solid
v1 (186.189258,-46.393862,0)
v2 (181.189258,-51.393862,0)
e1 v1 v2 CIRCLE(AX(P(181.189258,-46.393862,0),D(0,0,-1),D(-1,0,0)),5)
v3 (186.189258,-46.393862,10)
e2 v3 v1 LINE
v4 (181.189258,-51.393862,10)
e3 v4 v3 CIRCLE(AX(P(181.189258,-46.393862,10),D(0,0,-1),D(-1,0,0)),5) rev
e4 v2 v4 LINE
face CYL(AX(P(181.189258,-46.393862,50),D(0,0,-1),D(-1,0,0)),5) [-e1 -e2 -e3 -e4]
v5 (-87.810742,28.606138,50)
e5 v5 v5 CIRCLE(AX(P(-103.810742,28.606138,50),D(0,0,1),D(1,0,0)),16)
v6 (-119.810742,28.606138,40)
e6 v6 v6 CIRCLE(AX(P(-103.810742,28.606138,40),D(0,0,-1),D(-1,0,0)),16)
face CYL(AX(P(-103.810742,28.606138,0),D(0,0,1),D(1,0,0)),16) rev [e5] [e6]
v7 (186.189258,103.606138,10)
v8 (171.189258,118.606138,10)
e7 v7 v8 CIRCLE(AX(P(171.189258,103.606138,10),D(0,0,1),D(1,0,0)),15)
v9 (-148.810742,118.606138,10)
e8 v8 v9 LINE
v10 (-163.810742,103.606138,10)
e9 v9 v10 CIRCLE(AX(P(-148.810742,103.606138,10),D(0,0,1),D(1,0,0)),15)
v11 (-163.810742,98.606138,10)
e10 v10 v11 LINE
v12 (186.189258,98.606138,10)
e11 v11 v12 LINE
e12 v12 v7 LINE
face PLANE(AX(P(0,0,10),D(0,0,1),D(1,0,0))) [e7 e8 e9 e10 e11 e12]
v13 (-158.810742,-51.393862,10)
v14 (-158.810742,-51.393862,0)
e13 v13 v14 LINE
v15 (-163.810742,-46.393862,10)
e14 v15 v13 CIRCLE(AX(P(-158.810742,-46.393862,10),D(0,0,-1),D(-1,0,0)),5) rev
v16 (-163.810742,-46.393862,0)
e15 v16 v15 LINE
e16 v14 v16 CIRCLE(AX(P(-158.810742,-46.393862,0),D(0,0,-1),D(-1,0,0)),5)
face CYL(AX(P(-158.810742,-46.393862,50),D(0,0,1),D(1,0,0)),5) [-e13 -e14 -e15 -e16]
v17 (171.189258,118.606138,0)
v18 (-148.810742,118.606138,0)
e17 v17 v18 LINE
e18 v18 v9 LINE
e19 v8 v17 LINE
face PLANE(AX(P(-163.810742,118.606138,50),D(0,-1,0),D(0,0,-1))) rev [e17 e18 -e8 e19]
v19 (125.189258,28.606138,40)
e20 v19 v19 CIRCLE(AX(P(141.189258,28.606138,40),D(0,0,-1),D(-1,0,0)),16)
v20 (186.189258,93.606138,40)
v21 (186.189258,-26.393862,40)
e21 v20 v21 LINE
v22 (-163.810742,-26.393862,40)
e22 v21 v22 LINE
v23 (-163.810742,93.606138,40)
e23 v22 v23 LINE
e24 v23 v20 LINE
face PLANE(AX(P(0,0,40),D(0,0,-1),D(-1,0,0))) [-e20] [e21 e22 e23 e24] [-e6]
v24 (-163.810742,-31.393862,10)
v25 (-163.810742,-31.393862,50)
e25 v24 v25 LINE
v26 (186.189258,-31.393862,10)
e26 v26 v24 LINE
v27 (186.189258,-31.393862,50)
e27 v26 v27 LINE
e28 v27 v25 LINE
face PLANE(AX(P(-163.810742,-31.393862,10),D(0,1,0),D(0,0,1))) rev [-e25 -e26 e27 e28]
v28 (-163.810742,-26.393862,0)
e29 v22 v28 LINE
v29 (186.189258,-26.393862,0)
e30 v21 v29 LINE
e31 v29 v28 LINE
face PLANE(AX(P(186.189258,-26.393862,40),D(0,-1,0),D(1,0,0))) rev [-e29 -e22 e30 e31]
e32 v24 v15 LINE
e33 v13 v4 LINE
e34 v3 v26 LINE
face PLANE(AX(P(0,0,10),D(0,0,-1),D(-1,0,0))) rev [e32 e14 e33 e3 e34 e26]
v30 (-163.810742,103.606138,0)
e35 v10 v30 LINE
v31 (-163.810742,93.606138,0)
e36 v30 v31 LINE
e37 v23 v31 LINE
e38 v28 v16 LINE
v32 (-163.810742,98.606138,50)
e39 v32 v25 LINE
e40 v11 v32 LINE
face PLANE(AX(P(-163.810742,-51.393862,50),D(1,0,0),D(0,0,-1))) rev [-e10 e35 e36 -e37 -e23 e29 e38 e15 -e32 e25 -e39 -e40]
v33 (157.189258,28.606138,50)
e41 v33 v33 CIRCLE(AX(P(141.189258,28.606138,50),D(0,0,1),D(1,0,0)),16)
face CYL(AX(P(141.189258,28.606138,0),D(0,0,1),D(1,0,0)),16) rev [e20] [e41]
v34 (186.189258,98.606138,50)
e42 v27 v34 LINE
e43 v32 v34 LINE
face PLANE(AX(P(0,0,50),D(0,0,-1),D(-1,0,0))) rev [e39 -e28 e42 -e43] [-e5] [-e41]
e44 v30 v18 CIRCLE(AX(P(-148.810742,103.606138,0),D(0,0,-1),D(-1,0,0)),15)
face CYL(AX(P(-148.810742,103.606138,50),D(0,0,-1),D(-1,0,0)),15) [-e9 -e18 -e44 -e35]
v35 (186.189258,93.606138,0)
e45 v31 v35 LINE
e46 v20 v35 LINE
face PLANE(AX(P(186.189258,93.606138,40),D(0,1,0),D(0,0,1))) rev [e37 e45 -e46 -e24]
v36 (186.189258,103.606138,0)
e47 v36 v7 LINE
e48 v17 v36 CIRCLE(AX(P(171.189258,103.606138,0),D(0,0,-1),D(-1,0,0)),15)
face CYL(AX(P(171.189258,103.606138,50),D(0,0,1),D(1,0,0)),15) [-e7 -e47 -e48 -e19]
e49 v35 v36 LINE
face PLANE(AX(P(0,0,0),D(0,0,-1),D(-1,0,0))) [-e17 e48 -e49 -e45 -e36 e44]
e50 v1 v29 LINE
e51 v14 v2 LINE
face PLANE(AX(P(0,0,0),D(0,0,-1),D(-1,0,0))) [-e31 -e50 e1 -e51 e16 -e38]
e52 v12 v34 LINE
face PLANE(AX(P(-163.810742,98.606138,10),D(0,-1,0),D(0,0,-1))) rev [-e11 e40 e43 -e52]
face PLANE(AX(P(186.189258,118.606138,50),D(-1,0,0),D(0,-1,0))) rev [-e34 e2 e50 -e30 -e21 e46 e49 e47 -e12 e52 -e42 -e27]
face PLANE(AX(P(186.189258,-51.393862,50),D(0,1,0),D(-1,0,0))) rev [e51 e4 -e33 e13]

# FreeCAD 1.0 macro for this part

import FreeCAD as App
import Part
import Sketcher


def edges_at(feature, points):
    """Names of the edges that pass closest to the given points."""
    edges = feature.Shape.Edges
    near = lambda p: min(range(len(edges)), key=lambda i: edges[i].distToShape(Part.Vertex(*p))[0])
    return sorted({f"Edge{near(p) + 1}" for p in points})


def add_polygon(sketch, points):
    """Adds a closed chain of lines whose ends are joined by coincident constraints."""
    first, n = sketch.GeometryCount, len(points)
    for a, b in zip(points, points[1:] + points[:1]):
        sketch.addGeometry(Part.LineSegment(App.Vector(*a, 0), App.Vector(*b, 0)), False)
    for i in range(n):
        sketch.addConstraint(Sketcher.Constraint("Coincident", first + i, 2, first + (i + 1) % n, 1))

doc = App.newDocument("Part")
params = doc.addObject("Spreadsheet::Sheet", "Params")
for row, (alias, value) in enumerate([
    ("sketch1_width", "350 mm"),
    ("sketch1_height", "170 mm"),
    ("pad1_length", "50 mm"),
    ("sketch2_width", "350 mm"),
    ("sketch2_height", "20 mm"),
    ("pocket1_length", "40 mm"),
    ("sketch3_width", "350 mm"),
    ("sketch3_height", "120 mm"),
    ("pocket2_length", "40 mm"),
    ("sketch4_diameter", "32 mm"),
    ("fillet_radius", "5 mm"),
    ("fillet2_radius", "5 mm"),
    ("fillet3_radius", "15 mm"),
    ("fillet4_radius", "15 mm"),
], start=1):
    params.set(f"A{row}", alias)
    params.set(f"B{row}", "=" + value)
    params.setAlias(f"B{row}", alias)

body = doc.addObject("PartDesign::Body", "Body")

# Sketch on XY plane
sketch1 = doc.addObject("Sketcher::SketchObject", "Sketch")
body.addObject(sketch1)
sketch1.AttachmentSupport = (doc.XY_Plane, [""])
sketch1.MapMode = "FlatFace"
add_polygon(sketch1, [(-164, 119), (-164, -51), (186, -51), (186, 119)])  # lines 0-3
sketch1.addConstraint(Sketcher.Constraint("Vertical", 0))
sketch1.addConstraint(Sketcher.Constraint("Horizontal", 1))
sketch1.addConstraint(Sketcher.Constraint("Vertical", 2))
sketch1.addConstraint(Sketcher.Constraint("Horizontal", 3))
sketch1.addConstraint(Sketcher.Constraint("DistanceX", 1, 1, 1, 2, 350.0))
sketch1.addConstraint(Sketcher.Constraint("DistanceY", 0, 2, 0, 1, 170.0))
sketch1.addConstraint(Sketcher.Constraint("DistanceX", 0, 2, -1, 1, 163.810742))
sketch1.addConstraint(Sketcher.Constraint("DistanceY", 0, 2, -1, 1, 51.393862))
sketch1.setExpression("Constraints[8]", "Params.sketch1_width")
sketch1.setExpression("Constraints[9]", "Params.sketch1_height")
pad1 = doc.addObject("PartDesign::Pad", "Pad")
body.addObject(pad1)
pad1.Profile = sketch1
pad1.setExpression("Length", "Params.pad1_length")

# Sketch on XY plane
sketch2 = doc.addObject("Sketcher::SketchObject", "Sketch001")
body.addObject(sketch2)
sketch2.AttachmentSupport = (doc.XY_Plane, [""])
sketch2.MapMode = "FlatFace"
sketch2.AttachmentOffset = App.Placement(App.Vector(0, 0, 50), App.Rotation())
add_polygon(sketch2, [(-164, -31), (-164, -51), (186, -51), (186, -31)])  # lines 0-3
add_polygon(sketch2, [(-164, 119), (-164, 99), (186, 99), (186, 119)])  # lines 4-7
sketch2.addConstraint(Sketcher.Constraint("Vertical", 0))
sketch2.addConstraint(Sketcher.Constraint("Horizontal", 1))
sketch2.addConstraint(Sketcher.Constraint("Vertical", 2))
sketch2.addConstraint(Sketcher.Constraint("Horizontal", 3))
sketch2.addConstraint(Sketcher.Constraint("Vertical", 4))
sketch2.addConstraint(Sketcher.Constraint("Horizontal", 5))
sketch2.addConstraint(Sketcher.Constraint("Vertical", 6))
sketch2.addConstraint(Sketcher.Constraint("Horizontal", 7))
sketch2.addConstraint(Sketcher.Constraint("Vertical", 3, 2, 4, 2))
sketch2.addConstraint(Sketcher.Constraint("Vertical", 2, 2, 5, 2))
sketch2.addConstraint(Sketcher.Constraint("Equal", 2, 4))
sketch2.addConstraint(Sketcher.Constraint("DistanceX", 1, 1, 1, 2, 350.0))
sketch2.addConstraint(Sketcher.Constraint("DistanceY", 0, 2, 0, 1, 20.0))
sketch2.addConstraint(Sketcher.Constraint("DistanceY", 3, 2, 4, 2, 130.0))
sketch2.addConstraint(Sketcher.Constraint("DistanceX", 0, 2, -1, 1, 163.810742))
sketch2.addConstraint(Sketcher.Constraint("DistanceY", 0, 2, -1, 1, 51.393862))
sketch2.setExpression("Constraints[19]", "Params.sketch2_width")
sketch2.setExpression("Constraints[20]", "Params.sketch2_height")
pocket1 = doc.addObject("PartDesign::Pocket", "Pocket")
body.addObject(pocket1)
pocket1.Profile = sketch2
pocket1.setExpression("Length", "Params.pocket1_length")

# Sketch on XY plane
sketch3 = doc.addObject("Sketcher::SketchObject", "Sketch002")
body.addObject(sketch3)
sketch3.AttachmentSupport = (doc.XY_Plane, [""])
sketch3.MapMode = "FlatFace"
add_polygon(sketch3, [(186, 94), (186, -26), (-164, -26), (-164, 94)])  # lines 0-3
sketch3.addConstraint(Sketcher.Constraint("Vertical", 0))
sketch3.addConstraint(Sketcher.Constraint("Horizontal", 1))
sketch3.addConstraint(Sketcher.Constraint("Vertical", 2))
sketch3.addConstraint(Sketcher.Constraint("Horizontal", 3))
sketch3.addConstraint(Sketcher.Constraint("DistanceX", 1, 2, 1, 1, 350.0))
sketch3.addConstraint(Sketcher.Constraint("DistanceY", 0, 2, 0, 1, 120.0))
sketch3.addConstraint(Sketcher.Constraint("DistanceX", -1, 1, 0, 2, 186.189258))
sketch3.addConstraint(Sketcher.Constraint("DistanceY", 0, 2, -1, 1, 26.393862))
sketch3.setExpression("Constraints[8]", "Params.sketch3_width")
sketch3.setExpression("Constraints[9]", "Params.sketch3_height")
pocket2 = doc.addObject("PartDesign::Pocket", "Pocket001")
body.addObject(pocket2)
pocket2.Profile = sketch3
pocket2.setExpression("Length", "Params.pocket2_length")
pocket2.Reversed = True

# Sketch on XY plane
sketch4 = doc.addObject("Sketcher::SketchObject", "Sketch003")
body.addObject(sketch4)
sketch4.AttachmentSupport = (doc.XY_Plane, [""])
sketch4.MapMode = "FlatFace"
sketch4.AttachmentOffset = App.Placement(App.Vector(0, 0, 50), App.Rotation())
sketch4.addGeometry(Part.Circle(App.Vector(-104, 29, 0), App.Vector(0, 0, 1), 16), False)
sketch4.addGeometry(Part.Circle(App.Vector(141, 29, 0), App.Vector(0, 0, 1), 16), False)
sketch4.addConstraint(Sketcher.Constraint("Equal", 0, 1))
sketch4.addConstraint(Sketcher.Constraint("Horizontal", 0, 3, 1, 3))
sketch4.addConstraint(Sketcher.Constraint("Diameter", 0, 32.0))
sketch4.addConstraint(Sketcher.Constraint("DistanceX", 0, 3, 1, 3, 245.0))
sketch4.addConstraint(Sketcher.Constraint("DistanceX", 0, 3, -1, 1, 103.810742))
sketch4.addConstraint(Sketcher.Constraint("DistanceY", -1, 1, 0, 3, 28.606138))
sketch4.setExpression("Constraints[2]", "Params.sketch4_diameter")
pocket3 = doc.addObject("PartDesign::Pocket", "Pocket002")
body.addObject(pocket3)
pocket3.Profile = sketch4
pocket3.Type = "ThroughAll"
doc.recompute()

fillet = doc.addObject("PartDesign::Fillet", "Fillet")
body.addObject(fillet)
fillet.Base = (pocket3, edges_at(pocket3, [(-163.811, -51.394, 5)]))
fillet.setExpression("Radius", "Params.fillet_radius")
doc.recompute()

fillet2 = doc.addObject("PartDesign::Fillet", "Fillet001")
body.addObject(fillet2)
fillet2.Base = (fillet, edges_at(fillet, [(186.189, -51.394, 5)]))
fillet2.setExpression("Radius", "Params.fillet2_radius")
doc.recompute()

fillet3 = doc.addObject("PartDesign::Fillet", "Fillet002")
body.addObject(fillet3)
fillet3.Base = (fillet2, edges_at(fillet2, [(186.189, 118.606, 5)]))
fillet3.setExpression("Radius", "Params.fillet3_radius")
doc.recompute()

fillet4 = doc.addObject("PartDesign::Fillet", "Fillet003")
body.addObject(fillet4)
fillet4.Base = (fillet3, edges_at(fillet3, [(-163.811, 118.606, 5)]))
fillet4.setExpression("Radius", "Params.fillet4_radius")

doc.recompute()
